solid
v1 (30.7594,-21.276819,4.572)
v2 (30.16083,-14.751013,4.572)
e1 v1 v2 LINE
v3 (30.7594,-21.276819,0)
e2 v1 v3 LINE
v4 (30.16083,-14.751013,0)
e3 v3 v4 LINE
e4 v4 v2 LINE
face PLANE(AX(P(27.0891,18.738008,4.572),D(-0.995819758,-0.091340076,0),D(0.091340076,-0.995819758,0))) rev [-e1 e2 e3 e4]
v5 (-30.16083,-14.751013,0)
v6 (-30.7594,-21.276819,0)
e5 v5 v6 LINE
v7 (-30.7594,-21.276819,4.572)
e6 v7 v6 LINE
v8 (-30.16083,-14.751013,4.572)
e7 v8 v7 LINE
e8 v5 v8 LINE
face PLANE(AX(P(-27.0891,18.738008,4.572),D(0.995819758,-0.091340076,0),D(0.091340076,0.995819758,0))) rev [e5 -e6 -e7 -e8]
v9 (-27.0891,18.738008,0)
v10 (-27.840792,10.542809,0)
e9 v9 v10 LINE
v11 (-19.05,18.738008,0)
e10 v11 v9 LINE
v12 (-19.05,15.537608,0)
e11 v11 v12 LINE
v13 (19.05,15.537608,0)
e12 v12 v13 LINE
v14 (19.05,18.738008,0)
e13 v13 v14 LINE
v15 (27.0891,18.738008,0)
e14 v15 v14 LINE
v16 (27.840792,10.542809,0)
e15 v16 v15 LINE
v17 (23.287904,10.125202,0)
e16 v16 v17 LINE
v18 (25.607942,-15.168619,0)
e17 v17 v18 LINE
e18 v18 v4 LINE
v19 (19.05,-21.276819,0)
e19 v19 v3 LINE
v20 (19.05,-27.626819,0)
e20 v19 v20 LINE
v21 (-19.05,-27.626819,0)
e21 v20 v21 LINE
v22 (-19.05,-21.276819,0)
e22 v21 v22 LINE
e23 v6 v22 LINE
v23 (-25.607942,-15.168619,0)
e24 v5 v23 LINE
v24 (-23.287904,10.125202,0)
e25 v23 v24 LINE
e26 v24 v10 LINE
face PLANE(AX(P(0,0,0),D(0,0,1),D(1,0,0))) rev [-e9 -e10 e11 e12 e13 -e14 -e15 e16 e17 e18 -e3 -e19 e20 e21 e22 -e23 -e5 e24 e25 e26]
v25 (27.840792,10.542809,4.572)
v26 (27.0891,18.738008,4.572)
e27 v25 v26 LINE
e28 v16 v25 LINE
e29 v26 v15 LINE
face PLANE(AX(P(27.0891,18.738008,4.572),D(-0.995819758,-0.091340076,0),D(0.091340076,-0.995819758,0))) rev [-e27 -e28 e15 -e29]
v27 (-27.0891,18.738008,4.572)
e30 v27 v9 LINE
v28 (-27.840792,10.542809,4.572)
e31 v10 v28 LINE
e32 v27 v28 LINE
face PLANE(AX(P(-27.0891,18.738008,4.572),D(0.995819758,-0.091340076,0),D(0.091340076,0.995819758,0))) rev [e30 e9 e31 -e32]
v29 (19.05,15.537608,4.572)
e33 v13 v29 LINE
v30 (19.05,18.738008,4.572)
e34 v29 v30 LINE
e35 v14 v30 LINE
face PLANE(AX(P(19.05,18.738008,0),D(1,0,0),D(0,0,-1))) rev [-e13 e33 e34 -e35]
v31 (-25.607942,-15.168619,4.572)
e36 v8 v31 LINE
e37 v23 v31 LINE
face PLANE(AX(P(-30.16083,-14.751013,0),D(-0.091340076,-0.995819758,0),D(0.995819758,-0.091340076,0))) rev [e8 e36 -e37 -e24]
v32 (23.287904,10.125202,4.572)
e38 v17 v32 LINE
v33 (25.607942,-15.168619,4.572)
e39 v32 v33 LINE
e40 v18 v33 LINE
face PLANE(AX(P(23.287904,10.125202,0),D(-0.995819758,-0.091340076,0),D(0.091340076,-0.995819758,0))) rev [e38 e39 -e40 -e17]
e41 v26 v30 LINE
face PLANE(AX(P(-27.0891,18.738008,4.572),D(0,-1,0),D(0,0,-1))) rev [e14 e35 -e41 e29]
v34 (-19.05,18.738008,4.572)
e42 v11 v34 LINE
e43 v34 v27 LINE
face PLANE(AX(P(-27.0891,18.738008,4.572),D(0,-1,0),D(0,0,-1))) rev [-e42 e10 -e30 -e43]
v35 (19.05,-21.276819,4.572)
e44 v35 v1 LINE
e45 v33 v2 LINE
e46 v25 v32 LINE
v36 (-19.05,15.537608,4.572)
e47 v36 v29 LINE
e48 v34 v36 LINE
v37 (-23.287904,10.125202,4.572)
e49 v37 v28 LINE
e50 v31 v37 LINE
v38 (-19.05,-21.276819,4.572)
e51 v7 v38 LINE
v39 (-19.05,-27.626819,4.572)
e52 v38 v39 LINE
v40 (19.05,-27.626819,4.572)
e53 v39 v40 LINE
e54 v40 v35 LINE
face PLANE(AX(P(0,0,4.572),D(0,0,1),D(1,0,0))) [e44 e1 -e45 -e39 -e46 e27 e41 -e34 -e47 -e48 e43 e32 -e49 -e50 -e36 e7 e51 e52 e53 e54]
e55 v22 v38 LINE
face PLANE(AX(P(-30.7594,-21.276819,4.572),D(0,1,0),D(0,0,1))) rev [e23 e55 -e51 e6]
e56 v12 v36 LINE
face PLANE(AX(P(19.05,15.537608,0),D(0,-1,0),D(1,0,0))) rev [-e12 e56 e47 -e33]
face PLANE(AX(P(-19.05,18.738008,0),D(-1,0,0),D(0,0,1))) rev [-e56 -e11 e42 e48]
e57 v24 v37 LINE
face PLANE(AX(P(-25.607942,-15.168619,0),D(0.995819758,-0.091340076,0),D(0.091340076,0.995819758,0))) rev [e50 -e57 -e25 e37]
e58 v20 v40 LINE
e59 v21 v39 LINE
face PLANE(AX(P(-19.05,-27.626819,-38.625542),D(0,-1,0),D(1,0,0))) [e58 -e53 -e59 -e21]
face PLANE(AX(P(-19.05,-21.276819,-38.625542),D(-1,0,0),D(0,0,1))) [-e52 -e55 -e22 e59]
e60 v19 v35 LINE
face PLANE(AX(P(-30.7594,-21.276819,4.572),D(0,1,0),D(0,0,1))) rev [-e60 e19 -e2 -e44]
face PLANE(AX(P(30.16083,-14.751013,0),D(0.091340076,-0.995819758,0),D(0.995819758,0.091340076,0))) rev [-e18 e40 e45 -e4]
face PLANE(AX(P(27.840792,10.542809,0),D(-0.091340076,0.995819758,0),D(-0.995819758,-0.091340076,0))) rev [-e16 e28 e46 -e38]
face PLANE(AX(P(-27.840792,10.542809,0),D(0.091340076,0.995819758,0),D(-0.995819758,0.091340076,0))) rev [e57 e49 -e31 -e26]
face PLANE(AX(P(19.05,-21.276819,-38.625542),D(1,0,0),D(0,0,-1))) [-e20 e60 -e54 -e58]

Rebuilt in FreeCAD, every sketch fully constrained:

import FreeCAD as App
import Part
import Sketcher
from FreeCAD import Vector
Q = App.Units.Quantity

doc = App.newDocument("Part")
body = doc.addObject("PartDesign::Body", "Body")

# Sketch on XY plane
sketch1 = body.newObject("Sketcher::SketchObject", "Sketch")
sketch1.AttachmentSupport = (doc.getObject("XY_Plane"), [""])
sketch1.MapMode = "FlatFace"
sketch1.addGeometry(Part.LineSegment(Vector(27, 19, 0), Vector(-27, 19, 0)), False)
sketch1.addGeometry(Part.LineSegment(Vector(-27, 19, 0), Vector(-31, -21, 0)), False)
sketch1.addGeometry(Part.LineSegment(Vector(-31, -21, 0), Vector(31, -21, 0)), False)
sketch1.addGeometry(Part.LineSegment(Vector(31, -21, 0), Vector(27, 19, 0)), False)
sketch1.addConstraint(Sketcher.Constraint("Coincident", 0, 2, 1, 1))
sketch1.addConstraint(Sketcher.Constraint("Coincident", 1, 2, 2, 1))
sketch1.addConstraint(Sketcher.Constraint("Coincident", 2, 2, 3, 1))
sketch1.addConstraint(Sketcher.Constraint("Coincident", 3, 2, 0, 1))
sketch1.addConstraint(Sketcher.Constraint("Horizontal", 0))
sketch1.addConstraint(Sketcher.Constraint("Horizontal", 2))
sketch1.addConstraint(Sketcher.Constraint("Equal", 1, 3))
sketch1.addConstraint(Sketcher.Constraint("DistanceX", 0, 2, 0, 1, Q("2.133 in")))
sketch1.addConstraint(Sketcher.Constraint("DistanceX", 2, 1, 2, 2, Q("2.422 in")))
sketch1.addConstraint(Sketcher.Constraint("Distance", 1, Q("1.582 in")))
sketch1.addConstraint(Sketcher.Constraint("DistanceX", 1, 2, -1, 1, Q("1.211 in")))
sketch1.addConstraint(Sketcher.Constraint("DistanceY", 1, 2, -1, 1, Q("21.276819 mm")))
pad1 = body.newObject("PartDesign::Pad", "Pad")
pad1.Profile = sketch1
pad1.Length = Q("0.18 in")

# Sketch on XY plane
sketch2 = body.newObject("Sketcher::SketchObject", "Sketch001")
sketch2.AttachmentSupport = (doc.getObject("XY_Plane"), [""])
sketch2.MapMode = "FlatFace"
sketch2.AttachmentOffset = App.Placement(Vector(0, 0, 0.18 * 25.4), App.Rotation())
sketch2.addGeometry(Part.LineSegment(Vector(-19.1, 18.7, 0), Vector(-19.1, 15.5, 0)), False)
sketch2.addGeometry(Part.LineSegment(Vector(-19.1, 15.5, 0), Vector(19.1, 15.5, 0)), False)
sketch2.addGeometry(Part.LineSegment(Vector(19.1, 15.5, 0), Vector(19.1, 18.7, 0)), False)
sketch2.addGeometry(Part.LineSegment(Vector(19.1, 18.7, 0), Vector(-19.1, 18.7, 0)), False)
sketch2.addGeometry(Part.LineSegment(Vector(-27.8, 10.5, 0), Vector(-30.2, -14.8, 0)), False)
sketch2.addGeometry(Part.LineSegment(Vector(-30.2, -14.8, 0), Vector(-25.6, -15.2, 0)), False)
sketch2.addGeometry(Part.LineSegment(Vector(-25.6, -15.2, 0), Vector(-23.3, 10.1, 0)), False)
sketch2.addGeometry(Part.LineSegment(Vector(-23.3, 10.1, 0), Vector(-27.8, 10.5, 0)), False)
sketch2.addGeometry(Part.LineSegment(Vector(30.2, -14.8, 0), Vector(27.8, 10.5, 0)), False)
sketch2.addGeometry(Part.LineSegment(Vector(27.8, 10.5, 0), Vector(23.3, 10.1, 0)), False)
sketch2.addGeometry(Part.LineSegment(Vector(23.3, 10.1, 0), Vector(25.6, -15.2, 0)), False)
sketch2.addGeometry(Part.LineSegment(Vector(25.6, -15.2, 0), Vector(30.2, -14.8, 0)), False)
sketch2.addConstraint(Sketcher.Constraint("Coincident", 0, 2, 1, 1))
sketch2.addConstraint(Sketcher.Constraint("Coincident", 1, 2, 2, 1))
sketch2.addConstraint(Sketcher.Constraint("Coincident", 2, 2, 3, 1))
sketch2.addConstraint(Sketcher.Constraint("Coincident", 3, 2, 0, 1))
sketch2.addConstraint(Sketcher.Constraint("Coincident", 4, 2, 5, 1))
sketch2.addConstraint(Sketcher.Constraint("Coincident", 5, 2, 6, 1))
sketch2.addConstraint(Sketcher.Constraint("Coincident", 6, 2, 7, 1))
sketch2.addConstraint(Sketcher.Constraint("Coincident", 7, 2, 4, 1))
sketch2.addConstraint(Sketcher.Constraint("Coincident", 8, 2, 9, 1))
sketch2.addConstraint(Sketcher.Constraint("Coincident", 9, 2, 10, 1))
sketch2.addConstraint(Sketcher.Constraint("Coincident", 10, 2, 11, 1))
sketch2.addConstraint(Sketcher.Constraint("Coincident", 11, 2, 8, 1))
sketch2.addConstraint(Sketcher.Constraint("Vertical", 0))
sketch2.addConstraint(Sketcher.Constraint("Horizontal", 1))
sketch2.addConstraint(Sketcher.Constraint("Vertical", 2))
sketch2.addConstraint(Sketcher.Constraint("Horizontal", 3))
sketch2.addConstraint(Sketcher.Constraint("Symmetric", 7, 2, 8, 2, -2))
sketch2.addConstraint(Sketcher.Constraint("Symmetric", 6, 2, 9, 2, -2))
sketch2.addConstraint(Sketcher.Constraint("Symmetric", 5, 2, 10, 2, -2))
sketch2.addConstraint(Sketcher.Constraint("Symmetric", 4, 2, 11, 2, -2))
sketch2.addConstraint(Sketcher.Constraint("Perpendicular", 4, 5))
sketch2.addConstraint(Sketcher.Constraint("Perpendicular", 5, 6))
sketch2.addConstraint(Sketcher.Constraint("Perpendicular", 6, 7))
sketch2.addConstraint(Sketcher.Constraint("Distance", 4, Q("1 in")))
sketch2.addConstraint(Sketcher.Constraint("DistanceX", 1, 1, 1, 2, Q("1.5 in")))
sketch2.addConstraint(Sketcher.Constraint("Distance", 5, Q("0.18 in")))
sketch2.addConstraint(Sketcher.Constraint("DistanceY", 0, 2, 0, 1, Q("0.126 in")))
sketch2.addConstraint(Sketcher.Constraint("DistanceX", 0, 2, -1, 1, Q("0.75 in")))
sketch2.addConstraint(Sketcher.Constraint("DistanceY", 7, 2, 0, 2, Q("4.994798 mm")))
sketch2.addConstraint(Sketcher.Constraint("DistanceX", 4, 2, -1, 1, Q("30.16083 mm")))
sketch2.addConstraint(Sketcher.Constraint("DistanceY", 5, 2, -1, 1, Q("15.168619 mm")))
sketch2.addConstraint(Sketcher.Constraint("DistanceY", -1, 1, 7, 2, Q("10.542809 mm")))
pocket1 = body.newObject("PartDesign::Pocket", "Pocket")
pocket1.Profile = sketch2
pocket1.Type = "ThroughAll"

# Sketch on XY plane
sketch3 = body.newObject("Sketcher::SketchObject", "Sketch002")
sketch3.AttachmentSupport = (doc.getObject("XY_Plane"), [""])
sketch3.MapMode = "FlatFace"
sketch3.AttachmentOffset = App.Placement(Vector(0, 0, 0.18 * 25.4), App.Rotation())
sketch3.addGeometry(Part.LineSegment(Vector(-19, -21, 0), Vector(-19, -28, 0)), False)
sketch3.addGeometry(Part.LineSegment(Vector(-19, -28, 0), Vector(19, -28, 0)), False)
sketch3.addGeometry(Part.LineSegment(Vector(19, -28, 0), Vector(19, -21, 0)), False)
sketch3.addGeometry(Part.LineSegment(Vector(19, -21, 0), Vector(-19, -21, 0)), False)
sketch3.addConstraint(Sketcher.Constraint("Coincident", 0, 2, 1, 1))
sketch3.addConstraint(Sketcher.Constraint("Coincident", 1, 2, 2, 1))
sketch3.addConstraint(Sketcher.Constraint("Coincident", 2, 2, 3, 1))
sketch3.addConstraint(Sketcher.Constraint("Coincident", 3, 2, 0, 1))
sketch3.addConstraint(Sketcher.Constraint("Vertical", 0))
sketch3.addConstraint(Sketcher.Constraint("Horizontal", 1))
sketch3.addConstraint(Sketcher.Constraint("Vertical", 2))
sketch3.addConstraint(Sketcher.Constraint("Horizontal", 3))
sketch3.addConstraint(Sketcher.Constraint("DistanceX", 1, 1, 1, 2, Q("1.5 in")))
sketch3.addConstraint(Sketcher.Constraint("DistanceY", 0, 2, 0, 1, Q("0.25 in")))
sketch3.addConstraint(Sketcher.Constraint("DistanceX", 0, 2, -1, 1, Q("0.75 in")))
sketch3.addConstraint(Sketcher.Constraint("DistanceY", 0, 2, -1, 1, Q("27.626819 mm")))
pad2 = body.newObject("PartDesign::Pad", "Pad001")
pad2.Profile = sketch3
pad2.Length = Q("0.18 in")
pad2.Reversed = True

doc.recompute()
